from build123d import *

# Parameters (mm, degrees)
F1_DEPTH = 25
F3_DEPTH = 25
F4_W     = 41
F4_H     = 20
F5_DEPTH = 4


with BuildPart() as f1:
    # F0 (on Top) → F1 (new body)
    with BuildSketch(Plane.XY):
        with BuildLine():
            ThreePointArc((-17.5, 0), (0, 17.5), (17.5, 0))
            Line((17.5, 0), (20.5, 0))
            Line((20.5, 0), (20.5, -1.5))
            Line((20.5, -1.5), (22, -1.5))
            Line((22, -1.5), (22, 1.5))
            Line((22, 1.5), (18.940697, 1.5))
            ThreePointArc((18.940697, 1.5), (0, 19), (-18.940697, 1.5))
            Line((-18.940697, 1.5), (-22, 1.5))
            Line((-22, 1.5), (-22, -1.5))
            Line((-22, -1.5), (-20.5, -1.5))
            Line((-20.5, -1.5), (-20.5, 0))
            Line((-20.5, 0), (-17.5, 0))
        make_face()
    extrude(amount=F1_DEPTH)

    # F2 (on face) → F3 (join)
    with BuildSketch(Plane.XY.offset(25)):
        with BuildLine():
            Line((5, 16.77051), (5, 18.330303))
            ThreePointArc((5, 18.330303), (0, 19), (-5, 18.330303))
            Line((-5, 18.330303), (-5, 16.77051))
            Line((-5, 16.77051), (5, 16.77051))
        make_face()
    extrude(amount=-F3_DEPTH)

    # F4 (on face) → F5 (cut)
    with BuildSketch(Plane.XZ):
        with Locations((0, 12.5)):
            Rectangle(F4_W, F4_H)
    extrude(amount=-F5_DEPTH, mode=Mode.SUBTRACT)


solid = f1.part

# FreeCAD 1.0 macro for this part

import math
import FreeCAD as App
import Part
import Sketcher

V = App.Vector

doc = App.newDocument("Part")
body = doc.addObject("PartDesign::Body", "Body")

# Sketch on XY plane
sketch1 = doc.addObject("Sketcher::SketchObject", "Sketch")
body.addObject(sketch1)
sketch1.AttachmentSupport = (doc.XY_Plane, [""])
sketch1.MapMode = "FlatFace"
sketch1.addGeometry([
    Part.ArcOfCircle(Part.Circle(V(0, 0, 0), V(0, 0, 1), 17.5), math.radians(0), math.radians(180)),  # 0
    Part.LineSegment(V(17.5, 0, 0), V(20.5, 0, 0)),  # 1
    Part.LineSegment(V(20.5, 0, 0), V(20.5, -1.5, 0)),  # 2
    Part.LineSegment(V(20.5, -1.5, 0), V(22, -1.5, 0)),  # 3
    Part.LineSegment(V(22, -1.5, 0), V(22, 1.5, 0)),  # 4
    Part.LineSegment(V(22, 1.5, 0), V(18.9, 1.5, 0)),  # 5
    Part.ArcOfCircle(Part.Circle(V(0, 0, 0), V(0, 0, 1), 19), math.radians(5), math.radians(175)),  # 6
    Part.LineSegment(V(-18.9, 1.5, 0), V(-22, 1.5, 0)),  # 7
    Part.LineSegment(V(-22, 1.5, 0), V(-22, -1.5, 0)),  # 8
    Part.LineSegment(V(-22, -1.5, 0), V(-20.5, -1.5, 0)),  # 9
    Part.LineSegment(V(-20.5, -1.5, 0), V(-20.5, 0, 0)),  # 10
    Part.LineSegment(V(-20.5, 0, 0), V(-17.5, 0, 0)),  # 11
], False)
sketch1.addConstraint([
    Sketcher.Constraint("Coincident", 0, 1, 1, 1),
    Sketcher.Constraint("Coincident", 1, 2, 2, 1),
    Sketcher.Constraint("Coincident", 2, 2, 3, 1),
    Sketcher.Constraint("Coincident", 3, 2, 4, 1),
    Sketcher.Constraint("Coincident", 4, 2, 5, 1),
    Sketcher.Constraint("Coincident", 5, 2, 6, 1),
    Sketcher.Constraint("Coincident", 6, 2, 7, 1),
    Sketcher.Constraint("Coincident", 7, 2, 8, 1),
    Sketcher.Constraint("Coincident", 8, 2, 9, 1),
    Sketcher.Constraint("Coincident", 9, 2, 10, 1),
    Sketcher.Constraint("Coincident", 10, 2, 11, 1),
    Sketcher.Constraint("Coincident", 11, 2, 0, 2),
    Sketcher.Constraint("Horizontal", 1),
    Sketcher.Constraint("Vertical", 2),
    Sketcher.Constraint("Horizontal", 3),
    Sketcher.Constraint("Vertical", 4),
    Sketcher.Constraint("Horizontal", 5),
    Sketcher.Constraint("Horizontal", 7),
    Sketcher.Constraint("Vertical", 8),
    Sketcher.Constraint("Horizontal", 9),
    Sketcher.Constraint("Vertical", 10),
    Sketcher.Constraint("Horizontal", 11),
    Sketcher.Constraint("Coincident", 0, 3, -1, 1),
    Sketcher.Constraint("Coincident", 6, 3, -1, 1),
    Sketcher.Constraint("Symmetric", 3, 2, 7, 2, -1, 1),
    Sketcher.Constraint("Symmetric", 1, 2, 10, 2, -1, 1),
    Sketcher.Constraint("PointOnObject", 0, 1, -1),
    Sketcher.Constraint("Horizontal", 5, 2, 6, 2),
    Sketcher.Constraint("Horizontal", 3, 2, 8, 2),
    Sketcher.Constraint("Equal", 9, 2),
    Sketcher.Constraint("Equal", 11, 4),
    Sketcher.Constraint("Radius", 6, 19.0),
    Sketcher.Constraint("Radius", 0, 17.5),
    Sketcher.Constraint("DistanceX", 1, 1, 1, 2, 3.0),
])
pad1 = doc.addObject("PartDesign::Pad", "Pad")
body.addObject(pad1)
pad1.Profile = sketch1
pad1.Length = 25

# Sketch on XY plane
sketch2 = doc.addObject("Sketcher::SketchObject", "Sketch001")
body.addObject(sketch2)
sketch2.AttachmentSupport = (doc.XY_Plane, [""])
sketch2.MapMode = "FlatFace"
sketch2.AttachmentOffset = App.Placement(V(0, 0, 25), App.Rotation())
sketch2.addGeometry([
    Part.LineSegment(V(5, 16.8, 0), V(5, 18.3, 0)),
    Part.ArcOfCircle(Part.Circle(V(0, 0, 0), V(0, 0, 1), 19), math.radians(75), math.radians(105)),
    Part.LineSegment(V(-5, 18.3, 0), V(-5, 16.8, 0)),
    Part.LineSegment(V(-5, 16.8, 0), V(5, 16.8, 0)),
], False)
sketch2.addConstraint([
    Sketcher.Constraint("Coincident", 0, 2, 1, 1),
    Sketcher.Constraint("Coincident", 1, 2, 2, 1),
    Sketcher.Constraint("Coincident", 2, 2, 3, 1),
    Sketcher.Constraint("Coincident", 3, 2, 0, 1),
    Sketcher.Constraint("Vertical", 0),
    Sketcher.Constraint("Vertical", 2),
    Sketcher.Constraint("Horizontal", 3),
    Sketcher.Constraint("Coincident", 1, 3, -1, 1),
    Sketcher.Constraint("Horizontal", 0, 2, 1, 2),
    Sketcher.Constraint("DistanceX", 3, 1, 3, 2, 10.0),
    Sketcher.Constraint("Radius", 1, 19.000006),
    Sketcher.Constraint("DistanceY", 0, 1, 0, 2, 1.559793),
])
pad2 = doc.addObject("PartDesign::Pad", "Pad001")
body.addObject(pad2)
pad2.Profile = sketch2
pad2.Length = 25
pad2.Reversed = True

# Sketch on XZ plane
sketch3 = doc.addObject("Sketcher::SketchObject", "Sketch002")
body.addObject(sketch3)
sketch3.AttachmentSupport = (doc.XZ_Plane, [""])
sketch3.MapMode = "FlatFace"
sketch3.addGeometry([
    Part.LineSegment(V(-20, 22, 0), V(-20, 2, 0)),
    Part.LineSegment(V(-20, 2, 0), V(20, 2, 0)),
    Part.LineSegment(V(20, 2, 0), V(20, 22, 0)),
    Part.LineSegment(V(20, 22, 0), V(-20, 22, 0)),
], False)
sketch3.addConstraint([
    Sketcher.Constraint("Coincident", 0, 2, 1, 1),
    Sketcher.Constraint("Coincident", 1, 2, 2, 1),
    Sketcher.Constraint("Coincident", 2, 2, 3, 1),
    Sketcher.Constraint("Coincident", 3, 2, 0, 1),
    Sketcher.Constraint("Vertical", 0),
    Sketcher.Constraint("Horizontal", 1),
    Sketcher.Constraint("Vertical", 2),
    Sketcher.Constraint("Horizontal", 3),
    Sketcher.Constraint("DistanceX", 1, 1, 1, 2, 41.0),
    Sketcher.Constraint("DistanceY", 0, 2, 0, 1, 20.0),
    Sketcher.Constraint("DistanceX", 0, 2, -1, 1, 20.5),
    Sketcher.Constraint("DistanceY", -1, 1, 0, 2, 2.5),
])
pocket1 = doc.addObject("PartDesign::Pocket", "Pocket")
body.addObject(pocket1)
pocket1.Profile = sketch3
pocket1.Length = 4

doc.recompute()
